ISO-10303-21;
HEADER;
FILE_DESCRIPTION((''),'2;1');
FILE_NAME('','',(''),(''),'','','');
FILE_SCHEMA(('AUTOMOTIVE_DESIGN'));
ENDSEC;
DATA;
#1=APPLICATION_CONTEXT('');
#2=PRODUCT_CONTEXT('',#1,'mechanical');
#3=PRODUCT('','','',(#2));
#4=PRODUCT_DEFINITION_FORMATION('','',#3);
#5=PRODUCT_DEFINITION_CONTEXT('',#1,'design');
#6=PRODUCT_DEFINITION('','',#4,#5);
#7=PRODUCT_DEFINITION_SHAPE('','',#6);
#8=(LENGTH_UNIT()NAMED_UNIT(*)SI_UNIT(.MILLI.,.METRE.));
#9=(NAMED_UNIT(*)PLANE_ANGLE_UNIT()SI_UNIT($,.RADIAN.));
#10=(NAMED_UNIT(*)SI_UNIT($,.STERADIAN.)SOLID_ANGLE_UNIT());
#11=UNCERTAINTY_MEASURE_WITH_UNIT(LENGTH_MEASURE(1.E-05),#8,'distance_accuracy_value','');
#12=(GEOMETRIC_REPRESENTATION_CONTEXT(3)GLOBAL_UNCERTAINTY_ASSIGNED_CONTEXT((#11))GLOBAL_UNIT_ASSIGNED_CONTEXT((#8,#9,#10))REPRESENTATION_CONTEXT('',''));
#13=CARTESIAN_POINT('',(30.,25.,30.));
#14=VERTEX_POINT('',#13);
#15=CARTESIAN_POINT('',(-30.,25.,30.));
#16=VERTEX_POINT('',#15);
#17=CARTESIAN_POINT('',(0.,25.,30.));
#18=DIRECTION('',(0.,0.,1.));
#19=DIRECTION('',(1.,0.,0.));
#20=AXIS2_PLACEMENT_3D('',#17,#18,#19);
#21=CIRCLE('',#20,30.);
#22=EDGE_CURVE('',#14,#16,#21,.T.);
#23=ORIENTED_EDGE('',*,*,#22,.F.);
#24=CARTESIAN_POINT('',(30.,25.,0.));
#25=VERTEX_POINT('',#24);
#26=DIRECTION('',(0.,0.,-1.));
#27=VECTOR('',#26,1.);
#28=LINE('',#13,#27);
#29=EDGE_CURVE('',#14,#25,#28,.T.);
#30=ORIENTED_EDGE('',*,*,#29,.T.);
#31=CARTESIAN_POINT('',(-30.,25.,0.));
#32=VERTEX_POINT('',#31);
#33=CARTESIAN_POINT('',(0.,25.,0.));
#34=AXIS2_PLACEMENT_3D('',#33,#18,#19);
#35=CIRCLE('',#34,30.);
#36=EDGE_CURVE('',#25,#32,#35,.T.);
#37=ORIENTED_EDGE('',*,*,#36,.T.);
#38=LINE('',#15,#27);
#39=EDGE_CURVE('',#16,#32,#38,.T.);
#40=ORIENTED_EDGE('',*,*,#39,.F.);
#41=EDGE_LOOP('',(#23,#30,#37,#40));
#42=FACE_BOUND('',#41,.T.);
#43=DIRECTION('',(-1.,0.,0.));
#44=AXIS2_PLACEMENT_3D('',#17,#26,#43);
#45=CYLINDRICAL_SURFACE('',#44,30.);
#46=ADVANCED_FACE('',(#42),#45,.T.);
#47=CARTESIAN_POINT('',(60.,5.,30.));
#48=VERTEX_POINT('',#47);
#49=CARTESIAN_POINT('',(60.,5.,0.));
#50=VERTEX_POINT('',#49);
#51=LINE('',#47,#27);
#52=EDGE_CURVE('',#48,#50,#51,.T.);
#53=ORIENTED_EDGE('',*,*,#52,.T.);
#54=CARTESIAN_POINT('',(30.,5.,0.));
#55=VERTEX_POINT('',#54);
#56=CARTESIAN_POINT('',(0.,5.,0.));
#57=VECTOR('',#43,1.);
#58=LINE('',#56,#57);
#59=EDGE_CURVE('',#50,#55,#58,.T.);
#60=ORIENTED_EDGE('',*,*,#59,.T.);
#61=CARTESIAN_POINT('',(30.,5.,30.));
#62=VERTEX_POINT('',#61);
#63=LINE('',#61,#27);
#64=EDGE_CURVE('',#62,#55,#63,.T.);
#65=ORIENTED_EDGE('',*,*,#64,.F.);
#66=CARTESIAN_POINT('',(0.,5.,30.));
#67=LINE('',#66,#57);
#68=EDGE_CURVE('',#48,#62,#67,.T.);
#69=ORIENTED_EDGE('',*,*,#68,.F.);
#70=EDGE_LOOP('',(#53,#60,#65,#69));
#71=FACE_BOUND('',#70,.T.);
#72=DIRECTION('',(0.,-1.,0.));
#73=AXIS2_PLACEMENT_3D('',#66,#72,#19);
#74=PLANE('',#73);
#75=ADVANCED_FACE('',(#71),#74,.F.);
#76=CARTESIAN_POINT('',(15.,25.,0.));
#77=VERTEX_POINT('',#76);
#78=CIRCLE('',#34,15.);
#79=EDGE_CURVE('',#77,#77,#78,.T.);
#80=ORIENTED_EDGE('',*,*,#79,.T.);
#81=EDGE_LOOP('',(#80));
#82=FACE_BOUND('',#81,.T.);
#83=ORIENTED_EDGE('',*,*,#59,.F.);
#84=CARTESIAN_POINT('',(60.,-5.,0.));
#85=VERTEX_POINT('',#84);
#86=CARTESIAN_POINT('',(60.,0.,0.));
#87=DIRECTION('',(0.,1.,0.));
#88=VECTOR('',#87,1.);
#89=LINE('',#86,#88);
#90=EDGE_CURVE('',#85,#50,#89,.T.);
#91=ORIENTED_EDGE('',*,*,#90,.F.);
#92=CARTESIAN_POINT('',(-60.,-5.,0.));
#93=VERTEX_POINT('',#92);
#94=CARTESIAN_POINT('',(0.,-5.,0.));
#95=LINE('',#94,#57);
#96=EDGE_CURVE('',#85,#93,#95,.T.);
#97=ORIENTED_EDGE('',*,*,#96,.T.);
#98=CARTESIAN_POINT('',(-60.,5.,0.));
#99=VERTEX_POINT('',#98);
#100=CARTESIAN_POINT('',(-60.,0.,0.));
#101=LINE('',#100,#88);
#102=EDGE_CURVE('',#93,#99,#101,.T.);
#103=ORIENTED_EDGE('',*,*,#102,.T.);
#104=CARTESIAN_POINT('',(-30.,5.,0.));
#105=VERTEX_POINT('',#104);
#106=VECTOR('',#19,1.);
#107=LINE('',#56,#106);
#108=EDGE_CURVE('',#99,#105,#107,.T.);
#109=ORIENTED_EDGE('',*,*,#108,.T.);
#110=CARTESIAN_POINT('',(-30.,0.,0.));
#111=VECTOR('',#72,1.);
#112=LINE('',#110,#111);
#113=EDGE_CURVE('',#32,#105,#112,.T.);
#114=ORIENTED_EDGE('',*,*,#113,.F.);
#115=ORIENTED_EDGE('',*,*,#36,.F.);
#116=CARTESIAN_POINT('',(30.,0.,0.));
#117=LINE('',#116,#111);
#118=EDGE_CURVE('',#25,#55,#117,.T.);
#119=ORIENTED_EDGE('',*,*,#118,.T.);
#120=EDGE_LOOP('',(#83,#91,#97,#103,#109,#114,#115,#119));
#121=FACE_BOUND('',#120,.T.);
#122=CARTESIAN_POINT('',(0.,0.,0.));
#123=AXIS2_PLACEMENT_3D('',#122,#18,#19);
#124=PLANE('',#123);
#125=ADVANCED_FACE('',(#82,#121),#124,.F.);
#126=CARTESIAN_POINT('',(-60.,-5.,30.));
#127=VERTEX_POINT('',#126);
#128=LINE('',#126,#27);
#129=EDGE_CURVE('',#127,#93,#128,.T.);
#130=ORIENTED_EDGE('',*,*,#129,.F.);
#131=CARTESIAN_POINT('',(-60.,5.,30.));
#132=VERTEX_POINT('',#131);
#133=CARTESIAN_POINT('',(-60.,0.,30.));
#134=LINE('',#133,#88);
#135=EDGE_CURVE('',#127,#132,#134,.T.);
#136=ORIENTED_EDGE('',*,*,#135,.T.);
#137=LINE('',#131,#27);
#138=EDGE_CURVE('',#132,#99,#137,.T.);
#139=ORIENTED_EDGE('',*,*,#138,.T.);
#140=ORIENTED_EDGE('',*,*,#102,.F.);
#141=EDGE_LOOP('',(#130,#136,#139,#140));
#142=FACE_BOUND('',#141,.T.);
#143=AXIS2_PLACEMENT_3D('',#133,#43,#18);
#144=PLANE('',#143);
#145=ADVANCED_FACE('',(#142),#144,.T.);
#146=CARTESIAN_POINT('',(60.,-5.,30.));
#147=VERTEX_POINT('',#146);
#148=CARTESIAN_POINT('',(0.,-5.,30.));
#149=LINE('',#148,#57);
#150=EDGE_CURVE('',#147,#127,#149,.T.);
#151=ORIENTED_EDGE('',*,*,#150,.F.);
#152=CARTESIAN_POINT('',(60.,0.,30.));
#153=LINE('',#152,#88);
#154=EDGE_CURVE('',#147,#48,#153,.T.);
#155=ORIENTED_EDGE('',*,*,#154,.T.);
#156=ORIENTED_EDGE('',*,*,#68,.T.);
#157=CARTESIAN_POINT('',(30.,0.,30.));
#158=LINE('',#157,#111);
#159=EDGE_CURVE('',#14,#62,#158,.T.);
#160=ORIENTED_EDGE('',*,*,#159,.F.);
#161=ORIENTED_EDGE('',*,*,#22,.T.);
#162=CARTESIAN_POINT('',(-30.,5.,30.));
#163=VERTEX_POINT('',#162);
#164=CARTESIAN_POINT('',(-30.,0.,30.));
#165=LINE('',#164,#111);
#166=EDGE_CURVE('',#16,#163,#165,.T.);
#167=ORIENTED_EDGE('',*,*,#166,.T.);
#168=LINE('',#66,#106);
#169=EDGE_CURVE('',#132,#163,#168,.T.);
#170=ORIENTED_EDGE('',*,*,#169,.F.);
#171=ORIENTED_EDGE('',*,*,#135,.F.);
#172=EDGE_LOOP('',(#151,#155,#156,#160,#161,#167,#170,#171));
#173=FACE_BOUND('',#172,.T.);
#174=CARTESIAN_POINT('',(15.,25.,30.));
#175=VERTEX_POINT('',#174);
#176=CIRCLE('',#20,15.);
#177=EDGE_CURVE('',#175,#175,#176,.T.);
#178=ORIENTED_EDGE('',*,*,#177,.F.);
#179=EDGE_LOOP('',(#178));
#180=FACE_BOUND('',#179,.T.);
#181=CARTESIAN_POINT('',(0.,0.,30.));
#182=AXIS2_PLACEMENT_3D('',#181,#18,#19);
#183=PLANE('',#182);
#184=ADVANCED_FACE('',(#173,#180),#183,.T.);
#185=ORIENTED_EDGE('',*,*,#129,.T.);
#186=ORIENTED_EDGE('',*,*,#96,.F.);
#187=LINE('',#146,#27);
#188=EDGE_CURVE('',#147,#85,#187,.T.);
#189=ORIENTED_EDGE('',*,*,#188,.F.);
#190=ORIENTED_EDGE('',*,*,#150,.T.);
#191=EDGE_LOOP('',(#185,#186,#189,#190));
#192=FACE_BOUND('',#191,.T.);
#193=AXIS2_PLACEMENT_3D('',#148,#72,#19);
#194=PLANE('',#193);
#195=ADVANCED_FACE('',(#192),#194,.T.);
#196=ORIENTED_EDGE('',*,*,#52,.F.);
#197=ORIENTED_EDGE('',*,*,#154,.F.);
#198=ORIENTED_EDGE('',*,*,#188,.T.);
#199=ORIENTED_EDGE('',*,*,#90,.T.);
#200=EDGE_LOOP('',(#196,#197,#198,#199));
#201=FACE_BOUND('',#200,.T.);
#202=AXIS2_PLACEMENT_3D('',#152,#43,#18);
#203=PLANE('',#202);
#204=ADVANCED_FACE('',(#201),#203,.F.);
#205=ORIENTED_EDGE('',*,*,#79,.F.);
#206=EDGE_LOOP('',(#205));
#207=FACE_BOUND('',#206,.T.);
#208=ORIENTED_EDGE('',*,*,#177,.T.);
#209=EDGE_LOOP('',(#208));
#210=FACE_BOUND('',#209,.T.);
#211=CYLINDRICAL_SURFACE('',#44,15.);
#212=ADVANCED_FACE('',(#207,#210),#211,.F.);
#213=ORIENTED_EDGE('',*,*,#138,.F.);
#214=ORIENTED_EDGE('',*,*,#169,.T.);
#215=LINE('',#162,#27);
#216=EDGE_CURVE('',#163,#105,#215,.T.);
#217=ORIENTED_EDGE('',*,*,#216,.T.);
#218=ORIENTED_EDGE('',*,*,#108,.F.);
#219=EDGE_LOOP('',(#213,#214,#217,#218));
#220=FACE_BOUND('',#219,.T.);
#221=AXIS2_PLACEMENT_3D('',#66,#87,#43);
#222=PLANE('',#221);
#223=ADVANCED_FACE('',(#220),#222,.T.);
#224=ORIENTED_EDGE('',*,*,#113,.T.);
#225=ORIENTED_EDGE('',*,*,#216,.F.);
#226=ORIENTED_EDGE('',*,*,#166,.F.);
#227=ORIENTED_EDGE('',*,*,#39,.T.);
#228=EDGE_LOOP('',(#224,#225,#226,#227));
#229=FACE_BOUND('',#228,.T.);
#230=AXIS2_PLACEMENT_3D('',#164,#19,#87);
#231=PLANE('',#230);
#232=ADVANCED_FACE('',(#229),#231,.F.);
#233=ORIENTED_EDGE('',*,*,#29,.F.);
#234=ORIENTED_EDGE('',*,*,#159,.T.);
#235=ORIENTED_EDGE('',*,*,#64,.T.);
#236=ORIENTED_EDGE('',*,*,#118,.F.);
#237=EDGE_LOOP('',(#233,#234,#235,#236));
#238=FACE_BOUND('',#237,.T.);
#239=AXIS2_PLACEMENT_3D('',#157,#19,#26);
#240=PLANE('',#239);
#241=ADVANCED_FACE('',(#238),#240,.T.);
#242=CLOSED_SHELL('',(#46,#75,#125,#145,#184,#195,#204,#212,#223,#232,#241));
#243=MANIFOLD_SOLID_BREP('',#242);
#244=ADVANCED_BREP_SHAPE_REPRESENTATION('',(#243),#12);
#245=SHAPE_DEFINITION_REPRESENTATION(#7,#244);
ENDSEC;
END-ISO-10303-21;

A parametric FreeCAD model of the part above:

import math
import FreeCAD as App
import Part
import Sketcher
from FreeCAD import Vector
Q = App.Units.Quantity

doc = App.newDocument("Part")
params = doc.addObject("Spreadsheet::Sheet", "Params")
for row, (alias, value) in enumerate([
    ("sketch1_diameter", "30 mm"),
    ("sketch1_radius", "30 mm"),
    ("sketch1_width", "30 mm"),
    ("sketch1_height", "20 mm"),
    ("sketch1_height2", "10 mm"),
    ("pad1_length", "30 mm"),
], start=1):
    params.set(f"A{row}", alias)
    params.set(f"B{row}", "=" + value)
    params.setAlias(f"B{row}", alias)

body = doc.addObject("PartDesign::Body", "Body")

sketch1 = body.newObject("Sketcher::SketchObject", "Sketch")
sketch1.AttachmentSupport = (doc.getObject("XY_Plane"), [""])
sketch1.MapMode = "FlatFace"
sketch1.addGeometry([
    Part.LineSegment(Vector(30, 5, 0), Vector(30, 25, 0)),
    Part.ArcOfCircle(Part.Circle(Vector(0, 25, 0), Vector(0, 0, 1), 30), math.radians(0), math.radians(180)),
    Part.LineSegment(Vector(-30, 25, 0), Vector(-30, 5, 0)),
    Part.LineSegment(Vector(-30, 5, 0), Vector(-60, 5, 0)),
    Part.LineSegment(Vector(-60, 5, 0), Vector(-60, -5, 0)),
    Part.LineSegment(Vector(-60, -5, 0), Vector(60, -5, 0)),
    Part.LineSegment(Vector(60, -5, 0), Vector(60, 5, 0)),
    Part.LineSegment(Vector(60, 5, 0), Vector(30, 5, 0)),
    Part.Circle(Vector(0, 25, 0), Vector(0, 0, 1), 15),
], False)
sketch1.addConstraint([
    Sketcher.Constraint("Tangent", 0, 2, 1, 1),
    Sketcher.Constraint("Tangent", 1, 2, 2, 1),
    Sketcher.Constraint("Coincident", 2, 2, 3, 1),
    Sketcher.Constraint("Coincident", 3, 2, 4, 1),
    Sketcher.Constraint("Coincident", 4, 2, 5, 1),
    Sketcher.Constraint("Coincident", 5, 2, 6, 1),
    Sketcher.Constraint("Coincident", 6, 2, 7, 1),
    Sketcher.Constraint("Coincident", 7, 2, 0, 1),
    Sketcher.Constraint("Vertical", 0),
    Sketcher.Constraint("Vertical", 2),
    Sketcher.Constraint("Horizontal", 3),
    Sketcher.Constraint("Vertical", 4),
    Sketcher.Constraint("Horizontal", 5),
    Sketcher.Constraint("Vertical", 6),
    Sketcher.Constraint("Horizontal", 7),
    Sketcher.Constraint("Coincident", 8, 3, 1, 3),
    Sketcher.Constraint("Symmetric", 3, 2, 5, 2, -1, 1),
    Sketcher.Constraint("Symmetric", 2, 2, 7, 2, -2),
    Sketcher.Constraint("Diameter", 8, Q("30 mm")),
    Sketcher.Constraint("Radius", 1, Q("30 mm")),
    Sketcher.Constraint("DistanceX", 3, 2, 3, 1, Q("30 mm")),
    Sketcher.Constraint("DistanceY", 0, 1, 0, 2, Q("20 mm")),
    Sketcher.Constraint("DistanceY", 4, 2, 4, 1, Q("10 mm")),
])
sketch1.setExpression("Constraints[18]", "Params.sketch1_diameter")
sketch1.setExpression("Constraints[19]", "Params.sketch1_radius")
sketch1.setExpression("Constraints[20]", "Params.sketch1_width")
sketch1.setExpression("Constraints[21]", "Params.sketch1_height")
sketch1.setExpression("Constraints[22]", "Params.sketch1_height2")
pad1 = body.newObject("PartDesign::Pad", "Pad")
pad1.Profile = sketch1
pad1.setExpression("Length", "Params.pad1_length")

doc.recompute()
